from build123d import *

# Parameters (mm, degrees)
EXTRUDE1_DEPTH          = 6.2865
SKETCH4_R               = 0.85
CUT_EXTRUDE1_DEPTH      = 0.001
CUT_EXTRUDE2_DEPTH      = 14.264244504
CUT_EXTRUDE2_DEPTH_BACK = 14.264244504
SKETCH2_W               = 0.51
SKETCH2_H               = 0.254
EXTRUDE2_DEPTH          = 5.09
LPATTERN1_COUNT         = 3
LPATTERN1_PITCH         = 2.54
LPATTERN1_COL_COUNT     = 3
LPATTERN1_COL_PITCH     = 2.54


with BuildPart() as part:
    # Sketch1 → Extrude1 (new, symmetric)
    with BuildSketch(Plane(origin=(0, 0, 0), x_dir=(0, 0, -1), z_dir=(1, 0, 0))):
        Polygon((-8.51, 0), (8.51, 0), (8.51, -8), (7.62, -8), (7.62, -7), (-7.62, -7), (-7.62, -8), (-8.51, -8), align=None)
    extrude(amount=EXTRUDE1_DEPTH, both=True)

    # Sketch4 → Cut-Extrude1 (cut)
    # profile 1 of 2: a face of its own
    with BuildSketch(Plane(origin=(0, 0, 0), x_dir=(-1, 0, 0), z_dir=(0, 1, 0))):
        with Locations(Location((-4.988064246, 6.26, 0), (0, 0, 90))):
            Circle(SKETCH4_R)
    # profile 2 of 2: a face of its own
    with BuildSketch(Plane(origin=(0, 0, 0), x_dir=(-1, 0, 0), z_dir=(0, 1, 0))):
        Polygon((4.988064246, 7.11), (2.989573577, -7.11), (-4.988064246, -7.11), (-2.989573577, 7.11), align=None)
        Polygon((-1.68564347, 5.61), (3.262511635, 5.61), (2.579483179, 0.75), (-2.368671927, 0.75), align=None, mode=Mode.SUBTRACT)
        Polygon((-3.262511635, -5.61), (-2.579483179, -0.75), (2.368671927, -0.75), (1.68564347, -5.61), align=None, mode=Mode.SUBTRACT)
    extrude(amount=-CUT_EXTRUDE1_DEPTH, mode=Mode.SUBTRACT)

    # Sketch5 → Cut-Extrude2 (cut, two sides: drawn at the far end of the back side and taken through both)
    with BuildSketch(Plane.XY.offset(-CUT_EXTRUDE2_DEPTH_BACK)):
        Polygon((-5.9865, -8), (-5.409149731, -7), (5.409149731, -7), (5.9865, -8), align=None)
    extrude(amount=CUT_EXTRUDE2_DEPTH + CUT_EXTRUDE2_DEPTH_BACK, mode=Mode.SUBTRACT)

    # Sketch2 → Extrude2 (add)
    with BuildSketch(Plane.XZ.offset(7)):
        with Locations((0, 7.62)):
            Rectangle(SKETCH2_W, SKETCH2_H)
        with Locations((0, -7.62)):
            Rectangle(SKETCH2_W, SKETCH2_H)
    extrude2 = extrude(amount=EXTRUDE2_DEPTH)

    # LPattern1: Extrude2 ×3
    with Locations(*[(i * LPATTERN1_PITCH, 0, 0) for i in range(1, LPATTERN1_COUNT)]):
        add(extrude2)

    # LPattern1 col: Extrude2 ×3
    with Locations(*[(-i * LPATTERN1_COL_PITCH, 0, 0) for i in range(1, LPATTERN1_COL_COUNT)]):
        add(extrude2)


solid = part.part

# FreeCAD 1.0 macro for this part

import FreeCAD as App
import Part
import Sketcher
Q = App.Units.Quantity

doc = App.newDocument("Part")
body = doc.addObject("PartDesign::Body", "Body")

# Sketch on YZ plane
sketch1 = body.newObject("Sketcher::SketchObject", "Sketch")
sketch1.AttachmentSupport = (doc.getObject("YZ_Plane"), [""])
sketch1.MapMode = "FlatFace"
sketch1.addGeometry([
    Part.LineSegment(App.Vector(0, -8.5, 0), App.Vector(0, 8.5, 0)),  # 0
    Part.LineSegment(App.Vector(0, 8.5, 0), App.Vector(-8, 8.5, 0)),  # 1
    Part.LineSegment(App.Vector(-8, 8.5, 0), App.Vector(-8, 7.6, 0)),  # 2
    Part.LineSegment(App.Vector(-8, 7.6, 0), App.Vector(-7, 7.6, 0)),  # 3
    Part.LineSegment(App.Vector(-7, 7.6, 0), App.Vector(-7, -7.6, 0)),  # 4
    Part.LineSegment(App.Vector(-7, -7.6, 0), App.Vector(-8, -7.6, 0)),  # 5
    Part.LineSegment(App.Vector(-8, -7.6, 0), App.Vector(-8, -8.5, 0)),  # 6
    Part.LineSegment(App.Vector(-8, -8.5, 0), App.Vector(0, -8.5, 0)),  # 7
], False)
sketch1.addConstraint([
    Sketcher.Constraint("Coincident", 0, 2, 1, 1),
    Sketcher.Constraint("Coincident", 1, 2, 2, 1),
    Sketcher.Constraint("Coincident", 2, 2, 3, 1),
    Sketcher.Constraint("Coincident", 3, 2, 4, 1),
    Sketcher.Constraint("Coincident", 4, 2, 5, 1),
    Sketcher.Constraint("Coincident", 5, 2, 6, 1),
    Sketcher.Constraint("Coincident", 6, 2, 7, 1),
    Sketcher.Constraint("Coincident", 7, 2, 0, 1),
    Sketcher.Constraint("Vertical", 0),
    Sketcher.Constraint("Horizontal", 1),
    Sketcher.Constraint("Vertical", 2),
    Sketcher.Constraint("Horizontal", 3),
    Sketcher.Constraint("Vertical", 4),
    Sketcher.Constraint("Horizontal", 5),
    Sketcher.Constraint("Vertical", 6),
    Sketcher.Constraint("Horizontal", 7),
    Sketcher.Constraint("Symmetric", 0, 2, 7, 2, -1, 1),
    Sketcher.Constraint("Symmetric", 2, 2, 5, 2, -1),
    Sketcher.Constraint("DistanceX", 1, 2, 1, 1, Q("8 mm")),
    Sketcher.Constraint("DistanceX", 3, 1, 3, 2, Q("1 mm")),
    Sketcher.Constraint("DistanceY", 0, 1, 0, 2, Q("17.02 mm")),
    Sketcher.Constraint("DistanceY", 2, 2, 2, 1, Q("0.89 mm")),
])
pad1 = body.newObject("PartDesign::Pad", "Pad")
pad1.Profile = sketch1
pad1.Length = 12.573
pad1.Midplane = True

# Sketch on XZ plane
sketch2 = body.newObject("Sketcher::SketchObject", "Sketch001")
sketch2.AttachmentSupport = (doc.getObject("XZ_Plane"), [""])
sketch2.MapMode = "FlatFace"
sketch2.addGeometry([
    Part.Circle(App.Vector(5, 6.3, 0), App.Vector(0, 0, 1), 0.8),  # 0
    Part.LineSegment(App.Vector(-3, -7.1, 0), App.Vector(-5, 7.1, 0)),  # 1
    Part.LineSegment(App.Vector(-5, 7.1, 0), App.Vector(3, 7.1, 0)),  # 2
    Part.LineSegment(App.Vector(3, 7.1, 0), App.Vector(5, -7.1, 0)),  # 3
    Part.LineSegment(App.Vector(5, -7.1, 0), App.Vector(-3, -7.1, 0)),  # 4
    Part.LineSegment(App.Vector(3.3, -5.6, 0), App.Vector(2.6, -0.8, 0)),  # 5
    Part.LineSegment(App.Vector(2.6, -0.8, 0), App.Vector(-2.4, -0.8, 0)),  # 6
    Part.LineSegment(App.Vector(-2.4, -0.8, 0), App.Vector(-1.7, -5.6, 0)),  # 7
    Part.LineSegment(App.Vector(-1.7, -5.6, 0), App.Vector(3.3, -5.6, 0)),  # 8
    Part.LineSegment(App.Vector(1.7, 5.6, 0), App.Vector(-3.3, 5.6, 0)),  # 9
    Part.LineSegment(App.Vector(-3.3, 5.6, 0), App.Vector(-2.6, 0.8, 0)),  # 10
    Part.LineSegment(App.Vector(-2.6, 0.8, 0), App.Vector(2.4, 0.8, 0)),  # 11
    Part.LineSegment(App.Vector(2.4, 0.8, 0), App.Vector(1.7, 5.6, 0)),  # 12
], False)
sketch2.addConstraint([
    Sketcher.Constraint("Coincident", 1, 2, 2, 1),
    Sketcher.Constraint("Coincident", 2, 2, 3, 1),
    Sketcher.Constraint("Coincident", 3, 2, 4, 1),
    Sketcher.Constraint("Coincident", 4, 2, 1, 1),
    Sketcher.Constraint("Coincident", 5, 2, 6, 1),
    Sketcher.Constraint("Coincident", 6, 2, 7, 1),
    Sketcher.Constraint("Coincident", 7, 2, 8, 1),
    Sketcher.Constraint("Coincident", 8, 2, 5, 1),
    Sketcher.Constraint("Coincident", 9, 2, 10, 1),
    Sketcher.Constraint("Coincident", 10, 2, 11, 1),
    Sketcher.Constraint("Coincident", 11, 2, 12, 1),
    Sketcher.Constraint("Coincident", 12, 2, 9, 1),
    Sketcher.Constraint("Horizontal", 2),
    Sketcher.Constraint("Horizontal", 4),
    Sketcher.Constraint("Horizontal", 6),
    Sketcher.Constraint("Horizontal", 8),
    Sketcher.Constraint("Horizontal", 9),
    Sketcher.Constraint("Horizontal", 11),
    Sketcher.Constraint("Symmetric", 1, 2, 3, 2, -1, 1),
    Sketcher.Constraint("Symmetric", 8, 2, 9, 2, -1, 1),
    Sketcher.Constraint("Symmetric", 5, 2, 10, 2, -1, 1),
    Sketcher.Constraint("Parallel", 1, 3),
    Sketcher.Constraint("Parallel", 3, 5),
    Sketcher.Constraint("Parallel", 5, 7),
    Sketcher.Constraint("Parallel", 10, 12),
    Sketcher.Constraint("Vertical", 0, 3, 3, 2),
    Sketcher.Constraint("Equal", 8, 9),
    Sketcher.Constraint("Diameter", 0, Q("1.7 mm")),
    Sketcher.Constraint("Angle", 1, Q("98 deg")),
    Sketcher.Constraint("DistanceY", 4, 2, 7, 2, Q("1.5 mm")),
    Sketcher.Constraint("DistanceY", 6, 2, 10, 2, Q("1.5 mm")),
    Sketcher.Constraint("DistanceY", -1, 1, 0, 3, Q("6.26 mm")),
    Sketcher.Constraint("DistanceY", -1, 1, 1, 2, Q("7.11 mm")),
    Sketcher.Constraint("DistanceX", 4, 2, 6, 2, Q("0.620902 mm")),
    Sketcher.Constraint("DistanceX", 2, 1, 2, 2, Q("7.977638 mm")),
    Sketcher.Constraint("DistanceX", 6, 2, 6, 1, Q("4.948155 mm")),
])
pocket1 = body.newObject("PartDesign::Pocket", "Pocket")
pocket1.Profile = sketch2
pocket1.Length = 0.001
pocket1.Reversed = True

# Sketch on XY plane
sketch3 = body.newObject("Sketcher::SketchObject", "Sketch002")
sketch3.AttachmentSupport = (doc.getObject("XY_Plane"), [""])
sketch3.MapMode = "FlatFace"
sketch3.addGeometry([
    Part.LineSegment(App.Vector(-5.4, -7, 0), App.Vector(-6, -8, 0)),
    Part.LineSegment(App.Vector(-6, -8, 0), App.Vector(6, -8, 0)),
    Part.LineSegment(App.Vector(6, -8, 0), App.Vector(5.4, -7, 0)),
    Part.LineSegment(App.Vector(5.4, -7, 0), App.Vector(-5.4, -7, 0)),
], False)
sketch3.addConstraint([
    Sketcher.Constraint("Coincident", 0, 2, 1, 1),
    Sketcher.Constraint("Coincident", 1, 2, 2, 1),
    Sketcher.Constraint("Coincident", 2, 2, 3, 1),
    Sketcher.Constraint("Coincident", 3, 2, 0, 1),
    Sketcher.Constraint("Horizontal", 1),
    Sketcher.Constraint("Horizontal", 3),
    Sketcher.Constraint("Equal", 0, 2),
    Sketcher.Constraint("Angle", 0, Q("-120 deg")),
    Sketcher.Constraint("DistanceY", 0, 2, -1, 1, Q("8 mm")),
    Sketcher.Constraint("DistanceY", 2, 2, -1, 1, Q("7 mm")),
    Sketcher.Constraint("DistanceX", 1, 1, 1, 2, Q("11.973 mm")),
    Sketcher.Constraint("DistanceX", 0, 2, -1, 1, Q("5.9865 mm")),
])
pocket2 = body.newObject("PartDesign::Pocket", "Pocket001")
pocket2.Profile = sketch3
pocket2.Type = "ThroughAll"
pocket2.Midplane = True

# Sketch on XZ plane
sketch4 = body.newObject("Sketcher::SketchObject", "Sketch003")
sketch4.AttachmentSupport = (doc.getObject("XZ_Plane"), [""])
sketch4.MapMode = "FlatFace"
sketch4.AttachmentOffset = App.Placement(App.Vector(0, 0, 7), App.Rotation())
sketch4.addGeometry([
    Part.LineSegment(App.Vector(-0.26, 7.75, 0), App.Vector(-0.26, 7.49, 0)),  # 0
    Part.LineSegment(App.Vector(-0.26, 7.49, 0), App.Vector(0.26, 7.49, 0)),  # 1
    Part.LineSegment(App.Vector(0.26, 7.49, 0), App.Vector(0.26, 7.75, 0)),  # 2
    Part.LineSegment(App.Vector(0.26, 7.75, 0), App.Vector(-0.26, 7.75, 0)),  # 3
    Part.LineSegment(App.Vector(-0.26, -7.49, 0), App.Vector(-0.26, -7.75, 0)),  # 4
    Part.LineSegment(App.Vector(-0.26, -7.75, 0), App.Vector(0.26, -7.75, 0)),  # 5
    Part.LineSegment(App.Vector(0.26, -7.75, 0), App.Vector(0.26, -7.49, 0)),  # 6
    Part.LineSegment(App.Vector(0.26, -7.49, 0), App.Vector(-0.26, -7.49, 0)),  # 7
], False)
sketch4.addConstraint([
    Sketcher.Constraint("Coincident", 0, 2, 1, 1),
    Sketcher.Constraint("Coincident", 1, 2, 2, 1),
    Sketcher.Constraint("Coincident", 2, 2, 3, 1),
    Sketcher.Constraint("Coincident", 3, 2, 0, 1),
    Sketcher.Constraint("Coincident", 4, 2, 5, 1),
    Sketcher.Constraint("Coincident", 5, 2, 6, 1),
    Sketcher.Constraint("Coincident", 6, 2, 7, 1),
    Sketcher.Constraint("Coincident", 7, 2, 4, 1),
    Sketcher.Constraint("Vertical", 0),
    Sketcher.Constraint("Horizontal", 1),
    Sketcher.Constraint("Vertical", 2),
    Sketcher.Constraint("Horizontal", 3),
    Sketcher.Constraint("Vertical", 4),
    Sketcher.Constraint("Horizontal", 5),
    Sketcher.Constraint("Vertical", 6),
    Sketcher.Constraint("Horizontal", 7),
    Sketcher.Constraint("Symmetric", 2, 2, 4, 2, -1, 1),
    Sketcher.Constraint("Symmetric", 0, 2, 6, 2, -1, 1),
    Sketcher.Constraint("Vertical", 3, 2, 4, 2),
    Sketcher.Constraint("DistanceX", 1, 1, 1, 2, Q("0.51 mm")),
    Sketcher.Constraint("DistanceY", 0, 2, 0, 1, Q("0.254 mm")),
    Sketcher.Constraint("DistanceY", 4, 2, 0, 2, Q("15.24 mm")),
])
pad2 = body.newObject("PartDesign::Pad", "Pad001")
pad2.Profile = sketch4
pad2.Length = 5.09
doc.recompute()

linearpattern = body.newObject("PartDesign::LinearPattern", "LinearPattern")
linearpattern.Originals = [pad2]
linearpattern.Direction = (doc.getObject("X_Axis"), [""])
linearpattern.Mode = "offset"
linearpattern.Offset = 2.54
linearpattern.Occurrences = 3
body.Tip = linearpattern
doc.recompute()

linearpattern2 = body.newObject("PartDesign::LinearPattern", "LinearPattern001")
linearpattern2.Originals = [pad2]
linearpattern2.Direction = (doc.getObject("X_Axis"), [""])
linearpattern2.Mode = "offset"
linearpattern2.Offset = 2.54
linearpattern2.Occurrences = 3
linearpattern2.Reversed = True
body.Tip = linearpattern2

doc.recompute()
